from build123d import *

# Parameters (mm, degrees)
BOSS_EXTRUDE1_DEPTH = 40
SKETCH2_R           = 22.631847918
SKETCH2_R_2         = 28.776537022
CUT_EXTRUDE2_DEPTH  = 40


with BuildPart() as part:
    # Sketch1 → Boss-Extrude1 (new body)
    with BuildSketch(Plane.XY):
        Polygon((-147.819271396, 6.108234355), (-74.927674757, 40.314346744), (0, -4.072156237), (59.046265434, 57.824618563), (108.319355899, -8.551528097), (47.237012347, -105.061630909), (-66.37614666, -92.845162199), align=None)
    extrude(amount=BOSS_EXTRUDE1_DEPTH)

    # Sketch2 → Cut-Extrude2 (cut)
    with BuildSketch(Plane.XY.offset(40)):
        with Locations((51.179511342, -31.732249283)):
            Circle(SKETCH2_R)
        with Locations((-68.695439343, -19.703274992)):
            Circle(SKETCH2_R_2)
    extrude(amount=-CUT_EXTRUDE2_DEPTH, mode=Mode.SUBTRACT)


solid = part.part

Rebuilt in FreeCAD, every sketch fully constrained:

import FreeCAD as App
import Part
import Sketcher

V = App.Vector
Q = App.Units.Quantity

doc = App.newDocument("Part")
body = doc.addObject("PartDesign::Body", "Body")

# Sketch on XY plane
sketch1 = doc.addObject("Sketcher::SketchObject", "Sketch")
body.addObject(sketch1)
sketch1.AttachmentSupport = (doc.XY_Plane, [""])
sketch1.MapMode = "FlatFace"
sketch1.addGeometry([
    Part.LineSegment(V(-75, 40, 0), V(-148, 6, 0)),  # 0
    Part.LineSegment(V(-148, 6, 0), V(-66, -93, 0)),  # 1
    Part.LineSegment(V(-66, -93, 0), V(47, -105, 0)),  # 2
    Part.LineSegment(V(47, -105, 0), V(108, -9, 0)),  # 3
    Part.LineSegment(V(108, -9, 0), V(59, 58, 0)),  # 4
    Part.LineSegment(V(59, 58, 0), V(0, -4, 0)),  # 5
    Part.LineSegment(V(0, -4, 0), V(-75, 40, 0)),  # 6
], False)
sketch1.addConstraint([
    Sketcher.Constraint("Coincident", 0, 2, 1, 1),
    Sketcher.Constraint("Coincident", 1, 2, 2, 1),
    Sketcher.Constraint("Coincident", 2, 2, 3, 1),
    Sketcher.Constraint("Coincident", 3, 2, 4, 1),
    Sketcher.Constraint("Coincident", 4, 2, 5, 1),
    Sketcher.Constraint("Coincident", 5, 2, 6, 1),
    Sketcher.Constraint("Coincident", 6, 2, 0, 1),
    Sketcher.Constraint("PointOnObject", 5, 2, -2),
    Sketcher.Constraint("Distance", 1, Q("128.159109 mm")),
    Sketcher.Constraint("Distance", 2, Q("114.268071 mm")),
    Sketcher.Constraint("Distance", 6, Q("87.087991 mm")),
    Sketcher.Constraint("DistanceX", 0, 2, -1, 1, Q("147.819271 mm")),
    Sketcher.Constraint("DistanceY", 2, 2, -1, 1, Q("105.061631 mm")),
    Sketcher.Constraint("DistanceY", 3, 2, -1, 1, Q("8.551528 mm")),
    Sketcher.Constraint("DistanceY", -1, 1, 4, 2, Q("57.824619 mm")),
    Sketcher.Constraint("DistanceX", 1, 2, 2, 2, Q("113.613159 mm")),
    Sketcher.Constraint("DistanceX", 4, 2, 3, 2, Q("49.27309 mm")),
    Sketcher.Constraint("DistanceY", 3, 2, 5, 2, Q("4.479372 mm")),
    Sketcher.Constraint("DistanceY", 5, 2, 0, 2, Q("10.180391 mm")),
    Sketcher.Constraint("DistanceX", 6, 2, 1, 2, Q("8.551528 mm")),
    Sketcher.Constraint("DistanceX", 6, 2, 4, 2, Q("133.97394 mm")),
])
pad1 = doc.addObject("PartDesign::Pad", "Pad")
body.addObject(pad1)
pad1.Profile = sketch1
pad1.Length = 40

# Sketch on XY plane
sketch2 = doc.addObject("Sketcher::SketchObject", "Sketch001")
body.addObject(sketch2)
sketch2.AttachmentSupport = (doc.XY_Plane, [""])
sketch2.MapMode = "FlatFace"
sketch2.AttachmentOffset = App.Placement(V(0, 0, 40), App.Rotation())
sketch2.addGeometry([
    Part.Circle(V(51, -32, 0), V(0, 0, 1), 23),
    Part.Circle(V(-69, -20, 0), V(0, 0, 1), 29),
], False)
sketch2.addConstraint([
    Sketcher.Constraint("Diameter", 0, Q("45.263696 mm")),
    Sketcher.Constraint("Diameter", 1, Q("57.553074 mm")),
    Sketcher.Constraint("DistanceX", -1, 1, 0, 3, Q("51.179511 mm")),
    Sketcher.Constraint("DistanceY", 0, 3, -1, 1, Q("31.732249 mm")),
    Sketcher.Constraint("DistanceX", 1, 3, -1, 1, Q("68.695439 mm")),
    Sketcher.Constraint("DistanceY", 1, 3, -1, 1, Q("19.703275 mm")),
])
pocket1 = doc.addObject("PartDesign::Pocket", "Pocket")
body.addObject(pocket1)
pocket1.Profile = sketch2
pocket1.Length = 40

doc.recompute()
